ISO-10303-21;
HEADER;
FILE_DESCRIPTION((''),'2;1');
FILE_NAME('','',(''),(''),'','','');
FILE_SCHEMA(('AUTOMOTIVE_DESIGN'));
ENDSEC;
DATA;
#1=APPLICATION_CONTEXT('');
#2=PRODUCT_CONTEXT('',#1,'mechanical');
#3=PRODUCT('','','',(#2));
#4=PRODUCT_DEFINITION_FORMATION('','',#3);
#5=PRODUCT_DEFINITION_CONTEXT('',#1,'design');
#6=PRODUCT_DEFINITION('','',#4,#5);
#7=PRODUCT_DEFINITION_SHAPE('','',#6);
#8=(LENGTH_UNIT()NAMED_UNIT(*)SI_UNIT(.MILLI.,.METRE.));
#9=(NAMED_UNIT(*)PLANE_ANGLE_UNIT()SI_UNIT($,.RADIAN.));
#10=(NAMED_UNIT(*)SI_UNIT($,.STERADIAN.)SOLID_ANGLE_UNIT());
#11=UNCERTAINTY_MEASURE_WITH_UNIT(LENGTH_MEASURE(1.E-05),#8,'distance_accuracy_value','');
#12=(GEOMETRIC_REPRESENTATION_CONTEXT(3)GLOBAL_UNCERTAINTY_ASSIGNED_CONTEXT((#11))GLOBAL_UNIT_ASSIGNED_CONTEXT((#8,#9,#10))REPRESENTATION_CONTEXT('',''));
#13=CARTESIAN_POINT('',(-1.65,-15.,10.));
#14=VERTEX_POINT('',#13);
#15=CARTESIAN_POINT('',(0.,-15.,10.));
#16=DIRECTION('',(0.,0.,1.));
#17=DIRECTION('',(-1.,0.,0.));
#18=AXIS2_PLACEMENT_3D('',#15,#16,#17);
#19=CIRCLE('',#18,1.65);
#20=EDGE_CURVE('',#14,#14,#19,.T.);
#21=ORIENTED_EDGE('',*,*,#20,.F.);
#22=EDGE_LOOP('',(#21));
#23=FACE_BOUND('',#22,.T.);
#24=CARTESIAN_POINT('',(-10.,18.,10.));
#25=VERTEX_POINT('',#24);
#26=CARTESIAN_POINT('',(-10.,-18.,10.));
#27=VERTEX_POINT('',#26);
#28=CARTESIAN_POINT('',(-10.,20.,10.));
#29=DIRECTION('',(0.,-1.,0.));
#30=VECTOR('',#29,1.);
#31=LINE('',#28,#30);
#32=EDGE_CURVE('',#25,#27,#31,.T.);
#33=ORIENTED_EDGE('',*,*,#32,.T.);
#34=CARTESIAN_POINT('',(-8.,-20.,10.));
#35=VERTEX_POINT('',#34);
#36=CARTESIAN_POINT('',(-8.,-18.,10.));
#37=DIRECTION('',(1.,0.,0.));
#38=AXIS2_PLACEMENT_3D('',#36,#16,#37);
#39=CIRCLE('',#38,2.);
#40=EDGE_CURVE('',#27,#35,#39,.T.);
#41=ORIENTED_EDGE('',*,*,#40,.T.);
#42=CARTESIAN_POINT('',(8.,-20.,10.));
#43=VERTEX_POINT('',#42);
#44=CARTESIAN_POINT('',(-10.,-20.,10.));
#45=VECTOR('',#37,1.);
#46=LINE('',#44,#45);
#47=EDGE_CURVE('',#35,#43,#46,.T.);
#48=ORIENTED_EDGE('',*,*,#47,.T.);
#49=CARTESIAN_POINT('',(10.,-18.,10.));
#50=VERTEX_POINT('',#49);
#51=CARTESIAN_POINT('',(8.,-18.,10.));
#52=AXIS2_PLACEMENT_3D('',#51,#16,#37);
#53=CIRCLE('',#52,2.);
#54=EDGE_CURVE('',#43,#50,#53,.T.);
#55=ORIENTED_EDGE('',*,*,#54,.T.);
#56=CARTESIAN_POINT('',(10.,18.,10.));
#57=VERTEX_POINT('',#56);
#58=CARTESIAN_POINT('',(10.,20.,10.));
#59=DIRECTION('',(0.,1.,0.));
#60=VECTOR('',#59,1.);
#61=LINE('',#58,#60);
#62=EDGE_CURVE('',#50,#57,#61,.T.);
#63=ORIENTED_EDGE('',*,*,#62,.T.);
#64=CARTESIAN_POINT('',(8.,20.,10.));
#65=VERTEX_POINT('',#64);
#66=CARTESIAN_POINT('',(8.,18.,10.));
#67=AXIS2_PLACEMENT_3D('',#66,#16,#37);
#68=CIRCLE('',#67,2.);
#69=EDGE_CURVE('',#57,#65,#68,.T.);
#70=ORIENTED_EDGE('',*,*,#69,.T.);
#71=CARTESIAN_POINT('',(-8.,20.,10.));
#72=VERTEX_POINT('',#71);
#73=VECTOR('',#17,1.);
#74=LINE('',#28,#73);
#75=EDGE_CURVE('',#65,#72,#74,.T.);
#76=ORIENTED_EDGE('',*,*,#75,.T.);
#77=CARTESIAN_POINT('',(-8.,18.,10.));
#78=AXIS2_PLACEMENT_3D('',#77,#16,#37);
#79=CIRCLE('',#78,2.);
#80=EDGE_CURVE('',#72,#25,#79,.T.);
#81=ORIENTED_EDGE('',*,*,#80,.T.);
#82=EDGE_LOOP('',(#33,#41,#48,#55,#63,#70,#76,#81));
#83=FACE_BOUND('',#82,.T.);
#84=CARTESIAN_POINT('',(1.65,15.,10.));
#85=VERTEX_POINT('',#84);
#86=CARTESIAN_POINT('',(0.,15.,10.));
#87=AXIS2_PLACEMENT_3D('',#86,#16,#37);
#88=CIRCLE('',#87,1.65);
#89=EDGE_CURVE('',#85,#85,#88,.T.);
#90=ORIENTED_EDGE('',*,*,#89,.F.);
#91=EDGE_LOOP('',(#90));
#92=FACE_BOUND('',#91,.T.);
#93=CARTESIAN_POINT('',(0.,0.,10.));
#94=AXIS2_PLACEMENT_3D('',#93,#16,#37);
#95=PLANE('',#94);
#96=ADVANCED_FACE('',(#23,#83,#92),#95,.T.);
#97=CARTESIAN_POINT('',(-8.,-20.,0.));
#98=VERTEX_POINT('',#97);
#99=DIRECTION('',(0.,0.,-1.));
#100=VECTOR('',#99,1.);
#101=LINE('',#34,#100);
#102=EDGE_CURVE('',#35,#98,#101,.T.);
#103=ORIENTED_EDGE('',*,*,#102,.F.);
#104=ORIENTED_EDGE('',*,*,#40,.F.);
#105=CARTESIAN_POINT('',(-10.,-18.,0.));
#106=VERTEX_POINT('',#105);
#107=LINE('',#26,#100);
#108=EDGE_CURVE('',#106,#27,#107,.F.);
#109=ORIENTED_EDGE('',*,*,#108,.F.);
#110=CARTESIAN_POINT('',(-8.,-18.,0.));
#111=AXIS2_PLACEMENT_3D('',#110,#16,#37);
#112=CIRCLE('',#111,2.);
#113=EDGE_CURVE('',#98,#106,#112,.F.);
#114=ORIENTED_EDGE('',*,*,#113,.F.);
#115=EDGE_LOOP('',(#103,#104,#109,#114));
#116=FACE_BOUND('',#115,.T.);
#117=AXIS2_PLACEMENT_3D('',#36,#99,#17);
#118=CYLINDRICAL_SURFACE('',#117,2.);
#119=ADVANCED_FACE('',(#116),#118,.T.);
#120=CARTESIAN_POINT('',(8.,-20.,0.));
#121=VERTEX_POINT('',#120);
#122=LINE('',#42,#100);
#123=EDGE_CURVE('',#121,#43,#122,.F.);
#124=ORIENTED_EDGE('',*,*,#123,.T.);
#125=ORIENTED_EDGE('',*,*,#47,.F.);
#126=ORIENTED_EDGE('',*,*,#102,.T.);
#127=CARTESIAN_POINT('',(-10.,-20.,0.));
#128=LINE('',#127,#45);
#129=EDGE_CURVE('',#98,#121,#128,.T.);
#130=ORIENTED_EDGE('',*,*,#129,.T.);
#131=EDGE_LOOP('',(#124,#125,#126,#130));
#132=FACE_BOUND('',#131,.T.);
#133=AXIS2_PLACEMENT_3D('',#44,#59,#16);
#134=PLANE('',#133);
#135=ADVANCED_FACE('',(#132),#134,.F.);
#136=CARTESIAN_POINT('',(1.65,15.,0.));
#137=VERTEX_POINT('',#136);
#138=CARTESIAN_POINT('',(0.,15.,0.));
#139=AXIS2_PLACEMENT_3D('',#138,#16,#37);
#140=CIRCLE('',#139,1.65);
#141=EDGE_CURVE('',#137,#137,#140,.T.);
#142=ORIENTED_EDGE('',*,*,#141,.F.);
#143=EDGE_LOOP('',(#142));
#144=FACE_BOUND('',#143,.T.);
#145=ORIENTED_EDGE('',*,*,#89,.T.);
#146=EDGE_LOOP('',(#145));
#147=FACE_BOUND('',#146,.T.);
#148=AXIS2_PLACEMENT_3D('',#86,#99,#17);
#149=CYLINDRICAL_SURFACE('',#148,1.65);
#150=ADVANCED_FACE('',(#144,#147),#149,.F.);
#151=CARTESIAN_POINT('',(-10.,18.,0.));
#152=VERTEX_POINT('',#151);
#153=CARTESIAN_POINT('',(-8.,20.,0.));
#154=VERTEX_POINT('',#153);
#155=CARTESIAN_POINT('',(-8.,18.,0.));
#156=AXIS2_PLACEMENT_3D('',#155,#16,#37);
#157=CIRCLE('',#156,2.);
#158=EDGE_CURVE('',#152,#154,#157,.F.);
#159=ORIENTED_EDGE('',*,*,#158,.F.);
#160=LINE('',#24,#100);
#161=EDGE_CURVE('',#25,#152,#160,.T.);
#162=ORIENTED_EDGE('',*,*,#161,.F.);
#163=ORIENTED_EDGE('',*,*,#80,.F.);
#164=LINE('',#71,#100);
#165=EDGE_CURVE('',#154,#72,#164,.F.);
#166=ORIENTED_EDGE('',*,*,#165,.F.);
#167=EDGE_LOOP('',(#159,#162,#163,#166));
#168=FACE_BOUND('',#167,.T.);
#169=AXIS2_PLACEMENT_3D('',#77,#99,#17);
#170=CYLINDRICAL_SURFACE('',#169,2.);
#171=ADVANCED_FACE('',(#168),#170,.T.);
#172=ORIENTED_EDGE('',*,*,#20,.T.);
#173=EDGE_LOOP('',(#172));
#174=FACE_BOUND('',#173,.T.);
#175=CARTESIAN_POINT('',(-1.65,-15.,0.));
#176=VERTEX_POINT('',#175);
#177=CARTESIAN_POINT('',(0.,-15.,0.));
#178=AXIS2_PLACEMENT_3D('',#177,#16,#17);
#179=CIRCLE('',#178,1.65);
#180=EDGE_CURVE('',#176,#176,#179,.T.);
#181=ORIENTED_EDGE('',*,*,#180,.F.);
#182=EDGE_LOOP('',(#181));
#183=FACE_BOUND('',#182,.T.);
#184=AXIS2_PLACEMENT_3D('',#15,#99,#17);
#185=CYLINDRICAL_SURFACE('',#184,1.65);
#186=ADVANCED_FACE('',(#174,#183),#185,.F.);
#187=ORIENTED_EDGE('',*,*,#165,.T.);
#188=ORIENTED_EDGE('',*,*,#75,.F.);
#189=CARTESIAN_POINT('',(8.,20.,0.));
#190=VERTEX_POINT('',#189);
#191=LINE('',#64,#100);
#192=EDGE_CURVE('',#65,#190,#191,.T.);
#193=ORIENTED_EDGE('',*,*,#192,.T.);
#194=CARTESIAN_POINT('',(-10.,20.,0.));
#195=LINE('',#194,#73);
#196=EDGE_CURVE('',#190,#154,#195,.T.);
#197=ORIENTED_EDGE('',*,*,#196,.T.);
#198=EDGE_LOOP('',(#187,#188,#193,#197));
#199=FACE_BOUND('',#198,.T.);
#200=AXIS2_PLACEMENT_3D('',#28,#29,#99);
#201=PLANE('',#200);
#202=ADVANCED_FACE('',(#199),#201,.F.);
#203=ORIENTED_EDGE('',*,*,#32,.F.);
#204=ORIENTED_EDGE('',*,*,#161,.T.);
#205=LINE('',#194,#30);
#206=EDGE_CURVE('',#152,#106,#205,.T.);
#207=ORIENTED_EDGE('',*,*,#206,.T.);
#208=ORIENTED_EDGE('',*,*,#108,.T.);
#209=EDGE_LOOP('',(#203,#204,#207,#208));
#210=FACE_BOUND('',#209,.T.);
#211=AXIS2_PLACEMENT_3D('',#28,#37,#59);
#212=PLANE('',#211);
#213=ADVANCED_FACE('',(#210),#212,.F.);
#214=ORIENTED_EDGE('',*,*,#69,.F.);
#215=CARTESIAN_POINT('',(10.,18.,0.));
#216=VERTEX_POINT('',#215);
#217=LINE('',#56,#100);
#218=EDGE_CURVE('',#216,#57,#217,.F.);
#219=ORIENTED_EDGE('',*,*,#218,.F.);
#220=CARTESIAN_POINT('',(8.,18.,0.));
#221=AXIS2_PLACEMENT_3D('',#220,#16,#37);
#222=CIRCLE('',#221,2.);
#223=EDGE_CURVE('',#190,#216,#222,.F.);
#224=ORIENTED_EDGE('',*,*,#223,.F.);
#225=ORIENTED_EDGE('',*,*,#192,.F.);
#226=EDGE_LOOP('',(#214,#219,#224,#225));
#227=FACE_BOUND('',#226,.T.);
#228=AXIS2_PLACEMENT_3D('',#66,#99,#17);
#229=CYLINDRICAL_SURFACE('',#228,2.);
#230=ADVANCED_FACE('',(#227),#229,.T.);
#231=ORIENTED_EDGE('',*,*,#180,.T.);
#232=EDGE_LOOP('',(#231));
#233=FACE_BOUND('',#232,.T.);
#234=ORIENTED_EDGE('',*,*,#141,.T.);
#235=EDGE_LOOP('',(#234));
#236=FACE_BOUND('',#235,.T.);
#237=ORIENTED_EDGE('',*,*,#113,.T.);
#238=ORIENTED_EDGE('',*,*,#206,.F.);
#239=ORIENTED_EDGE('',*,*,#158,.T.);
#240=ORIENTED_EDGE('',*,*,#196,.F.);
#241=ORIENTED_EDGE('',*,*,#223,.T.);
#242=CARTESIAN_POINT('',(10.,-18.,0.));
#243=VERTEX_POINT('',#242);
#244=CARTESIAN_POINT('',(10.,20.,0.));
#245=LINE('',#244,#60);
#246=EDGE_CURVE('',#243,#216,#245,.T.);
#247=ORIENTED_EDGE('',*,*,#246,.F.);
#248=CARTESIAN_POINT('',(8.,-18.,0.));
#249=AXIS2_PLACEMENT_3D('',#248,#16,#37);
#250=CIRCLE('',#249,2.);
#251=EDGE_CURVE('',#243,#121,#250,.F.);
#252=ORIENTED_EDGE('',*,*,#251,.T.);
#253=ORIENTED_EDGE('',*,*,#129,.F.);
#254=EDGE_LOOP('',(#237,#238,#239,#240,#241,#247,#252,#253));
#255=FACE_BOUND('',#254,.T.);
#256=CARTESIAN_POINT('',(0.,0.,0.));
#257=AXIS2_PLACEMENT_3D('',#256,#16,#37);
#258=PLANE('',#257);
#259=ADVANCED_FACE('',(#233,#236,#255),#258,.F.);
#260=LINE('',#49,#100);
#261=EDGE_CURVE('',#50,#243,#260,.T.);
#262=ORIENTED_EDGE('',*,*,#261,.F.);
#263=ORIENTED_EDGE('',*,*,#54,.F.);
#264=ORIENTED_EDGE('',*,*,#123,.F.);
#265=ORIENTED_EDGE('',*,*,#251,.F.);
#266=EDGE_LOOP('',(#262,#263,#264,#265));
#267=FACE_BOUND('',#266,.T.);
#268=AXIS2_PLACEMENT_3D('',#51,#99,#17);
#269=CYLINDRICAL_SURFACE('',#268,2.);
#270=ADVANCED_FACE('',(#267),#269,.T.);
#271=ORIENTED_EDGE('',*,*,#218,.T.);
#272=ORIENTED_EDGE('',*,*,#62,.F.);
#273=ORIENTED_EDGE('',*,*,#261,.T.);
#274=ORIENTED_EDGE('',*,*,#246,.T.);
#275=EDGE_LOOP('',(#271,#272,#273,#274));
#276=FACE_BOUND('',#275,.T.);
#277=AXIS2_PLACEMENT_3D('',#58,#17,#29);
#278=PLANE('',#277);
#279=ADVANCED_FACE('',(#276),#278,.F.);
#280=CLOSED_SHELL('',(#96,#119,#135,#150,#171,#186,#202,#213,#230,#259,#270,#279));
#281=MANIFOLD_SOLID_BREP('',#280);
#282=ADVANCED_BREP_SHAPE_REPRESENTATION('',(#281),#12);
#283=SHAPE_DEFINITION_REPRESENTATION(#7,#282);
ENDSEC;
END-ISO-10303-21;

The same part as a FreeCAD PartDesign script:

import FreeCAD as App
import Part
import Sketcher


def edges_at(feature, points):
    """Names of the edges that pass closest to the given points."""
    edges = feature.Shape.Edges
    near = lambda p: min(range(len(edges)), key=lambda i: edges[i].distToShape(Part.Vertex(*p))[0])
    return sorted({f"Edge{near(p) + 1}" for p in points})

doc = App.newDocument("Part")
body = doc.addObject("PartDesign::Body", "Body")

# Sketch on XY plane
sketch1 = doc.addObject("Sketcher::SketchObject", "Sketch")
body.addObject(sketch1)
sketch1.AttachmentSupport = (doc.XY_Plane, [""])
sketch1.MapMode = "FlatFace"
sketch1.addGeometry([
    Part.LineSegment(App.Vector(-10, 20, 0), App.Vector(-10, -20, 0)),  # 0
    Part.LineSegment(App.Vector(-10, -20, 0), App.Vector(10, -20, 0)),  # 1
    Part.LineSegment(App.Vector(10, -20, 0), App.Vector(10, 20, 0)),  # 2
    Part.LineSegment(App.Vector(10, 20, 0), App.Vector(-10, 20, 0)),  # 3
    Part.Circle(App.Vector(0, -15, 0), App.Vector(0, 0, 1), 1.6),  # 4
    Part.Circle(App.Vector(0, 15, 0), App.Vector(0, 0, 1), 1.6),  # 5
], False)
sketch1.addConstraint([
    Sketcher.Constraint("Coincident", 0, 2, 1, 1),
    Sketcher.Constraint("Coincident", 1, 2, 2, 1),
    Sketcher.Constraint("Coincident", 2, 2, 3, 1),
    Sketcher.Constraint("Coincident", 3, 2, 0, 1),
    Sketcher.Constraint("Vertical", 0),
    Sketcher.Constraint("Horizontal", 1),
    Sketcher.Constraint("Vertical", 2),
    Sketcher.Constraint("Horizontal", 3),
    Sketcher.Constraint("Equal", 4, 5),
    Sketcher.Constraint("Symmetric", 4, 3, 5, 3, -1, 1),
    Sketcher.Constraint("Symmetric", 0, 2, 2, 2, -1, 1),
    Sketcher.Constraint("PointOnObject", 4, 3, -2),
    Sketcher.Constraint("Diameter", 4, 3.3),
    Sketcher.Constraint("DistanceX", 1, 1, 1, 2, 20.0),
    Sketcher.Constraint("DistanceY", 0, 2, 0, 1, 40.0),
    Sketcher.Constraint("DistanceY", 4, 3, -1, 1, 15.0),
])
pad1 = doc.addObject("PartDesign::Pad", "Pad")
body.addObject(pad1)
pad1.Profile = sketch1
pad1.Length = 10
doc.recompute()

fillet = doc.addObject("PartDesign::Fillet", "Fillet")
body.addObject(fillet)
fillet.Base = (pad1, edges_at(pad1, [
    (10, -20, 5),
    (-10, -20, 5),
    (-10, 20, 5),
    (10, 20, 5),
]))
fillet.Radius = 2

doc.recompute()
